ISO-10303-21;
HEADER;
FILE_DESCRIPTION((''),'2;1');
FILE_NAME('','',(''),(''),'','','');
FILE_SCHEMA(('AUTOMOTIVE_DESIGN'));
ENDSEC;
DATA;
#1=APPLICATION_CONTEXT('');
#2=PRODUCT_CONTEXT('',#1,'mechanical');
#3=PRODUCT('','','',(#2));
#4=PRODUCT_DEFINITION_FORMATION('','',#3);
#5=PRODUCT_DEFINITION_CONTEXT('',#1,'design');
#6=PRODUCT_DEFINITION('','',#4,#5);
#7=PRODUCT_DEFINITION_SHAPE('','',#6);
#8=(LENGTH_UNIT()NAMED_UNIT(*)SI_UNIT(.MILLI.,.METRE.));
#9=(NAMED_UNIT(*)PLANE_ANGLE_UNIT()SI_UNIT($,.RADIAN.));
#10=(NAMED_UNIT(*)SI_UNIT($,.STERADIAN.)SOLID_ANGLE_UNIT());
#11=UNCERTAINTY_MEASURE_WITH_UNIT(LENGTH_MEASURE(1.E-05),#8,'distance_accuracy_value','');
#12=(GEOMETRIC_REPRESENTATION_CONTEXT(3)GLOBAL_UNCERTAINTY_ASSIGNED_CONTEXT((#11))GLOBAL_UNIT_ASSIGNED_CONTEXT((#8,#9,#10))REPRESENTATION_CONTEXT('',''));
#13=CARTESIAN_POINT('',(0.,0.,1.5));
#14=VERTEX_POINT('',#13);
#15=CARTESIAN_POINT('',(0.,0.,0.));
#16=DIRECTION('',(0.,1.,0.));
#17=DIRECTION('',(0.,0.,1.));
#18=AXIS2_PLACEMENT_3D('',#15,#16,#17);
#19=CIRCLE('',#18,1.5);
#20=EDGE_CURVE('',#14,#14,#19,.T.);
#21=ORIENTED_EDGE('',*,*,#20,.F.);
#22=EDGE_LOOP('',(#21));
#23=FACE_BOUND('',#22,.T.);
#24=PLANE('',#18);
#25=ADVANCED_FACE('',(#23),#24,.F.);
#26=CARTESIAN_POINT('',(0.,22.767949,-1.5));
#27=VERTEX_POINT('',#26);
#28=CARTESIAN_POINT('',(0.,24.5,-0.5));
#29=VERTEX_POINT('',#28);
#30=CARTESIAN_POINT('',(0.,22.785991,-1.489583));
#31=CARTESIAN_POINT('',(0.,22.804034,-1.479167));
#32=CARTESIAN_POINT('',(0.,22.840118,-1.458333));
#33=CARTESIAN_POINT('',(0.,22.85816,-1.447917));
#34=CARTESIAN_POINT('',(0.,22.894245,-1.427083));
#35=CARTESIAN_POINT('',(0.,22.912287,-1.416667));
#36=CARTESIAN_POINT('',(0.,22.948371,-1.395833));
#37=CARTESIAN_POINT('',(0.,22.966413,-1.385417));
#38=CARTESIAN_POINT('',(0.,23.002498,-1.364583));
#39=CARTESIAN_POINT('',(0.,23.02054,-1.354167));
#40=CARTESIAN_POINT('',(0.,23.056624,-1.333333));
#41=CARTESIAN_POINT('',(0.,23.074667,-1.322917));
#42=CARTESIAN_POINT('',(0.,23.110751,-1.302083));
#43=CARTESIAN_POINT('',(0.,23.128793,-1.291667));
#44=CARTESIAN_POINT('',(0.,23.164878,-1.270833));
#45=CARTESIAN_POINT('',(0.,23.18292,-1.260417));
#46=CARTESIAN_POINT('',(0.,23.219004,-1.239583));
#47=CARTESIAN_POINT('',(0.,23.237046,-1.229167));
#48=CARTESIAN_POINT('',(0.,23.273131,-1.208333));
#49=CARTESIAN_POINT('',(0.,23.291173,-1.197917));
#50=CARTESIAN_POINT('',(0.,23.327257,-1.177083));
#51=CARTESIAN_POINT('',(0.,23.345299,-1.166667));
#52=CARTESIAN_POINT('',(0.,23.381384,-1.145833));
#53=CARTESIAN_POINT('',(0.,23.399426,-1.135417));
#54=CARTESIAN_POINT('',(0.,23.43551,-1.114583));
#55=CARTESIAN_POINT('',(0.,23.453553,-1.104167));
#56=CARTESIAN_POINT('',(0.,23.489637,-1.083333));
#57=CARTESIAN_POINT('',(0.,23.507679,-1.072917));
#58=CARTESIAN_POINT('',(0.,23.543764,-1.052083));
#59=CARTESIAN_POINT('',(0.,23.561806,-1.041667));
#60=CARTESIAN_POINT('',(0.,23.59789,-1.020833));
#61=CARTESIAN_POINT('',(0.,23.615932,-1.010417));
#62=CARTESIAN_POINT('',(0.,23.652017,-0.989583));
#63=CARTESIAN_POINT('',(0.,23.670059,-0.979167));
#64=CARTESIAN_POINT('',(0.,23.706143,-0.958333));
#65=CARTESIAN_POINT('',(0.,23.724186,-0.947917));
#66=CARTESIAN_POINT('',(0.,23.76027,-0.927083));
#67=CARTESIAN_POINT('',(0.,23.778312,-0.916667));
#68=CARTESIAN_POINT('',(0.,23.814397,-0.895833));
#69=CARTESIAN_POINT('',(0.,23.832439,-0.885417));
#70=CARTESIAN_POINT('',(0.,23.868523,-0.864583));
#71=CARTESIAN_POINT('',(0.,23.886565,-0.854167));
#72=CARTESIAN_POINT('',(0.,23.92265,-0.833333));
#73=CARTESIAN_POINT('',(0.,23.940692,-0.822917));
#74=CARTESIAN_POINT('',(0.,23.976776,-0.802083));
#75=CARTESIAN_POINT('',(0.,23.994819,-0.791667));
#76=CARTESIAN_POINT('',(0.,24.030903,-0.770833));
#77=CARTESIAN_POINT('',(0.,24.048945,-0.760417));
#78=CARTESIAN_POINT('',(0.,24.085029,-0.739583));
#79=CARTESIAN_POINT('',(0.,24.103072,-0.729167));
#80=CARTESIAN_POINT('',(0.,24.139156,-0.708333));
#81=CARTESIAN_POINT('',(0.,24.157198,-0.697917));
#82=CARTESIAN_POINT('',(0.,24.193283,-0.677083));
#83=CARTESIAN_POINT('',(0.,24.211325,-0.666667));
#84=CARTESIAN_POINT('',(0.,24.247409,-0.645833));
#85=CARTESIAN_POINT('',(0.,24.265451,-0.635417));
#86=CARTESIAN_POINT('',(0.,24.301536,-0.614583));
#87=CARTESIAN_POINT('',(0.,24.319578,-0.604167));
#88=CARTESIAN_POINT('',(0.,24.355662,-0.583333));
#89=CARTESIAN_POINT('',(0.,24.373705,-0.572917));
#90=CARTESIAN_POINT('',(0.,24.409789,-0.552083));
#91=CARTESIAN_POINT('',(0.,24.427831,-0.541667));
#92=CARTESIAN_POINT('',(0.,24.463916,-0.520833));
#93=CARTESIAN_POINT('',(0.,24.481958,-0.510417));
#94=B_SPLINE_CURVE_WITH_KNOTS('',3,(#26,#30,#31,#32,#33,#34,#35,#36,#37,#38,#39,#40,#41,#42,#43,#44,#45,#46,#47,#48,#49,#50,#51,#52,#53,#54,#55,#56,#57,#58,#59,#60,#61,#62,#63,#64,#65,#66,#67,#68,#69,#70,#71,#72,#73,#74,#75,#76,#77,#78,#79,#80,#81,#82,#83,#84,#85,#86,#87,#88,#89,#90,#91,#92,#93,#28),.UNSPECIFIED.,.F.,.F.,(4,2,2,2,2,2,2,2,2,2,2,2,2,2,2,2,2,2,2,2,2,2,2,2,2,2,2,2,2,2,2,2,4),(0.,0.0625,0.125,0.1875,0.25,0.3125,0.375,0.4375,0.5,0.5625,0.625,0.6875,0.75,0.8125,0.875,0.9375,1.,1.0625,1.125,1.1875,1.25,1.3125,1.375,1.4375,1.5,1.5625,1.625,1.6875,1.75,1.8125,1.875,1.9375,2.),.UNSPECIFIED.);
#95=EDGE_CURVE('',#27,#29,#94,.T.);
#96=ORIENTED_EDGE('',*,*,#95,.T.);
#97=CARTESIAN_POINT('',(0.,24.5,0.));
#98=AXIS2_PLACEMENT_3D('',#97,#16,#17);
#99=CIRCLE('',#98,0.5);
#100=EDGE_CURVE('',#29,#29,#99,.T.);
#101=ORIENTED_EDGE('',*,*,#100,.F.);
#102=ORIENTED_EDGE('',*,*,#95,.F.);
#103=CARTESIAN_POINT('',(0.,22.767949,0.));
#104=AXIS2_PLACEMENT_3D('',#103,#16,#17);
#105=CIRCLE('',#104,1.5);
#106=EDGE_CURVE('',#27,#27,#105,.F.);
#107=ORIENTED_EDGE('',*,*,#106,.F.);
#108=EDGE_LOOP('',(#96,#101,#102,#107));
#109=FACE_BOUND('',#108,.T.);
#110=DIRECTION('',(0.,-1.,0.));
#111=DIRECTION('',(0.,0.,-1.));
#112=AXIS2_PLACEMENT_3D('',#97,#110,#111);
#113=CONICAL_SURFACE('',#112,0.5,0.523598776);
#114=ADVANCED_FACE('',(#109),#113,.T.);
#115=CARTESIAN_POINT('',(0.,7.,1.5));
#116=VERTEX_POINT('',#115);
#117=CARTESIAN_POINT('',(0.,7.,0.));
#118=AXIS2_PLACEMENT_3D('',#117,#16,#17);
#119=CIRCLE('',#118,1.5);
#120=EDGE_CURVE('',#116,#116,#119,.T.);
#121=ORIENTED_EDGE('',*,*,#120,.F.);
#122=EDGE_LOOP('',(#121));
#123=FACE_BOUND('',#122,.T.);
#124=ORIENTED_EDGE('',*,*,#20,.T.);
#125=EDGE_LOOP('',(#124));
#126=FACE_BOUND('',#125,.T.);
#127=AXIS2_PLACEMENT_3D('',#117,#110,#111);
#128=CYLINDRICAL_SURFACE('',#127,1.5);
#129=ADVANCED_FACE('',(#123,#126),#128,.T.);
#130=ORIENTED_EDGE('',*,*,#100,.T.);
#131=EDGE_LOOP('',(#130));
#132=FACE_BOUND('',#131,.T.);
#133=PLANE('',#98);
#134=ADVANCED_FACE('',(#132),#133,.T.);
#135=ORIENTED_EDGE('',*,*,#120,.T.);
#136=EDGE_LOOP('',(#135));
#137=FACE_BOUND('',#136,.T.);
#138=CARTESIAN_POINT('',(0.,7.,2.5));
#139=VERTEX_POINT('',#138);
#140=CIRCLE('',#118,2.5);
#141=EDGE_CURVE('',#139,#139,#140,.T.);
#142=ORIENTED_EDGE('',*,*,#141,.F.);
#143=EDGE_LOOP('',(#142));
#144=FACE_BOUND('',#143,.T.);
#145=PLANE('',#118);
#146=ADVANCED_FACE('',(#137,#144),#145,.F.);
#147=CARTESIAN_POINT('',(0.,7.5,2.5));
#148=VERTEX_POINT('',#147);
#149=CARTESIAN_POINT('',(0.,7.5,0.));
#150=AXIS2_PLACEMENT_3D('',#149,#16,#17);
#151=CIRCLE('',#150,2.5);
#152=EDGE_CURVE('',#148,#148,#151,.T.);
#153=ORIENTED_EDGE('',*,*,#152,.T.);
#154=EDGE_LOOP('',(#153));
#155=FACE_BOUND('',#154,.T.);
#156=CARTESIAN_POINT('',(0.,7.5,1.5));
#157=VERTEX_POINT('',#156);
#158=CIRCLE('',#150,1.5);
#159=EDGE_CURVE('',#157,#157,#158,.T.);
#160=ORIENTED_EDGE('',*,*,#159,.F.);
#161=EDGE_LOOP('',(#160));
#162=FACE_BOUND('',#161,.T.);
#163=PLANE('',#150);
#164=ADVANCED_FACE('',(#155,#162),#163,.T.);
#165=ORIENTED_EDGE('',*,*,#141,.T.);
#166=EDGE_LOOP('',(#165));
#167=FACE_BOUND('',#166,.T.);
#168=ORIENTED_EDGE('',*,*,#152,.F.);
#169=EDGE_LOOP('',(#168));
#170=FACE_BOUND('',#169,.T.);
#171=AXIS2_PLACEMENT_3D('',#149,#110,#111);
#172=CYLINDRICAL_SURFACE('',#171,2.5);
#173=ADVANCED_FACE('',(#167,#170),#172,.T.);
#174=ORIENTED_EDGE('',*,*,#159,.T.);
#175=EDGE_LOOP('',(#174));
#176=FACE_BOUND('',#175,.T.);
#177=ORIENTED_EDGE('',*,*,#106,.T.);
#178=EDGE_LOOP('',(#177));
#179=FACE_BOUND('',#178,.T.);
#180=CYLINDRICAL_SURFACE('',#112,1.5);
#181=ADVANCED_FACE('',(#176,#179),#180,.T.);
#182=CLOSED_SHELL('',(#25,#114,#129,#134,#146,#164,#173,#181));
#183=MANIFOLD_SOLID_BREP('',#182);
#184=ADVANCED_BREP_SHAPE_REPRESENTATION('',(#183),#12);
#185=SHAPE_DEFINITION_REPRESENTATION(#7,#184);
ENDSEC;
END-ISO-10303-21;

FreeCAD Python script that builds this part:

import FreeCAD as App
import Part
import Sketcher

V = App.Vector


def edges_at(feature, points):
    """Names of the edges that pass closest to the given points."""
    edges = feature.Shape.Edges
    near = lambda p: min(range(len(edges)), key=lambda i: edges[i].distToShape(Part.Vertex(*p))[0])
    return sorted({f"Edge{near(p) + 1}" for p in points})

doc = App.newDocument("Part")
body = doc.addObject("PartDesign::Body", "Body")

# Sketch on XZ plane
sketch1 = body.newObject("Sketcher::SketchObject", "Sketch")
sketch1.AttachmentSupport = (doc.getObject("XZ_Plane"), [""])
sketch1.MapMode = "FlatFace"
sketch1.addGeometry(Part.Circle(V(0, 0, 0), V(0, 0, 1), 1.5), False)
sketch1.addConstraint([
    Sketcher.Constraint("Coincident", 0, 3, -1, 1),
    Sketcher.Constraint("Diameter", 0, 3.0),
])
pad1 = body.newObject("PartDesign::Pad", "Pad")
pad1.Profile = sketch1
pad1.Length = 7
pad1.Reversed = True

# Sketch on XZ plane
sketch2 = body.newObject("Sketcher::SketchObject", "Sketch001")
sketch2.AttachmentSupport = (doc.getObject("XZ_Plane"), [""])
sketch2.MapMode = "FlatFace"
sketch2.AttachmentOffset = App.Placement(V(0, 0, -7), App.Rotation())
sketch2.addGeometry(Part.Circle(V(0, 0, 0), V(0, 0, 1), 2.5), False)
sketch2.addConstraint([
    Sketcher.Constraint("Coincident", 0, 3, -1, 1),
    Sketcher.Constraint("Diameter", 0, 5.0),
])
pad2 = body.newObject("PartDesign::Pad", "Pad001")
pad2.Profile = sketch2
pad2.Length = 0.5
pad2.Reversed = True

# Sketch on XZ plane
sketch3 = body.newObject("Sketcher::SketchObject", "Sketch002")
sketch3.AttachmentSupport = (doc.getObject("XZ_Plane"), [""])
sketch3.MapMode = "FlatFace"
sketch3.AttachmentOffset = App.Placement(V(0, 0, -7.5), App.Rotation())
sketch3.addGeometry(Part.Circle(V(0, 0, 0), V(0, 0, 1), 1.5), False)
sketch3.addConstraint([
    Sketcher.Constraint("Coincident", 0, 3, -1, 1),
    Sketcher.Constraint("Diameter", 0, 3.0),
])
pad3 = body.newObject("PartDesign::Pad", "Pad002")
pad3.Profile = sketch3
pad3.Length = 17
pad3.Reversed = True
doc.recompute()

chamfer = body.newObject("PartDesign::Chamfer", "Chamfer")
chamfer.Base = (pad3, edges_at(pad3, [(0, 24.5, -1.5)]))
chamfer.ChamferType = "Two distances"
chamfer.Size = 1
chamfer.Size2 = 1.732051
chamfer.FlipDirection = True

doc.recompute()
